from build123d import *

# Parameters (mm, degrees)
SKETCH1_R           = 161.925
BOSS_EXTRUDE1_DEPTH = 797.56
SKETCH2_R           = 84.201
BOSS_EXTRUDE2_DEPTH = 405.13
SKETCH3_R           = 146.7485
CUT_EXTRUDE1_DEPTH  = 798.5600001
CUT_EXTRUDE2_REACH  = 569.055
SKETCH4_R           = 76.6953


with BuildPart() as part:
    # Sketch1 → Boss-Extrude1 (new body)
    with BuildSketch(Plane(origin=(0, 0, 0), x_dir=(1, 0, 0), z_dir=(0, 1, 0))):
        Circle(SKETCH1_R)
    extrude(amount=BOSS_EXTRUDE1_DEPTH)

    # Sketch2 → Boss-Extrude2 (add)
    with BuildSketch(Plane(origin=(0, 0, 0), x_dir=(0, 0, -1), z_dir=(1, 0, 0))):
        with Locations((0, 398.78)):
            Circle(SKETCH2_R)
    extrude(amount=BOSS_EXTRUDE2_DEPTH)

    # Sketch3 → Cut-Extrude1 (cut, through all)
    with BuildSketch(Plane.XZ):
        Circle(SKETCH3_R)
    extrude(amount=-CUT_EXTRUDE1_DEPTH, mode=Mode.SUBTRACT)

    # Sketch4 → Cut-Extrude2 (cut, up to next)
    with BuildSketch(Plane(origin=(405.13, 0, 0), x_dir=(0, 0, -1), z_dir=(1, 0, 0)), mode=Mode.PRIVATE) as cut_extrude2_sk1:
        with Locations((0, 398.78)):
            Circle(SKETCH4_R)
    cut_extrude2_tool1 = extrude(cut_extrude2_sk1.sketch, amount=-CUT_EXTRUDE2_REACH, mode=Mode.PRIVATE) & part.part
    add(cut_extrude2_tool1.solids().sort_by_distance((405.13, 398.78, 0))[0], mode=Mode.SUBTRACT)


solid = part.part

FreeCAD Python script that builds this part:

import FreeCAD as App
import Part
import Sketcher
from FreeCAD import Vector
Q = App.Units.Quantity

doc = App.newDocument("Part")
params = doc.addObject("Spreadsheet::Sheet", "Params")
for row, (alias, value) in enumerate([
    ("sketch1_diameter", "12.75 in"),
    ("pad1_length", "31.4 in"),
    ("sketch2_diameter", "6.63 in"),
    ("pad2_length", "15.95 in"),
    ("sketch3_diameter", "11.555 in"),
    ("sketch4_diameter", "6.039 in"),
    ("pocket2_length", "280.018237 mm"),
], start=1):
    params.set(f"A{row}", alias)
    params.set(f"B{row}", "=" + value)
    params.setAlias(f"B{row}", alias)

body = doc.addObject("PartDesign::Body", "Body")

sketch1 = body.newObject("Sketcher::SketchObject", "Sketch")
sketch1.AttachmentSupport = (doc.getObject("XZ_Plane"), [""])
sketch1.MapMode = "FlatFace"
sketch1.addGeometry(Part.Circle(Vector(0, 0, 0), Vector(0, 0, 1), 161.925), False)
sketch1.addConstraint(Sketcher.Constraint("Coincident", 0, 3, -1, 1))
sketch1.addConstraint(Sketcher.Constraint("Diameter", 0, Q("12.75 in")))
sketch1.setExpression("Constraints[1]", "Params.sketch1_diameter")
pad1 = body.newObject("PartDesign::Pad", "Pad")
pad1.Profile = sketch1
pad1.setExpression("Length", "Params.pad1_length")
pad1.Reversed = True

sketch2 = body.newObject("Sketcher::SketchObject", "Sketch001")
sketch2.AttachmentSupport = (doc.getObject("YZ_Plane"), [""])
sketch2.MapMode = "FlatFace"
sketch2.addGeometry(Part.Circle(Vector(398.78, 0, 0), Vector(0, 0, 1), 84.201), False)
sketch2.addConstraint(Sketcher.Constraint("PointOnObject", 0, 3, -1))
sketch2.addConstraint(Sketcher.Constraint("Diameter", 0, Q("6.63 in")))
sketch2.addConstraint(Sketcher.Constraint("DistanceX", -1, 1, 0, 3, Q("15.7 in")))
sketch2.setExpression("Constraints[1]", "Params.sketch2_diameter")
pad2 = body.newObject("PartDesign::Pad", "Pad001")
pad2.Profile = sketch2
pad2.setExpression("Length", "Params.pad2_length")

sketch3 = body.newObject("Sketcher::SketchObject", "Sketch002")
sketch3.AttachmentSupport = (doc.getObject("XZ_Plane"), [""])
sketch3.MapMode = "FlatFace"
sketch3.addGeometry(Part.Circle(Vector(0, 0, 0), Vector(0, 0, 1), 146.7485), False)
sketch3.addConstraint(Sketcher.Constraint("Coincident", 0, 3, -1, 1))
sketch3.addConstraint(Sketcher.Constraint("Diameter", 0, Q("11.555 in")))
sketch3.setExpression("Constraints[1]", "Params.sketch3_diameter")
pocket1 = body.newObject("PartDesign::Pocket", "Pocket")
pocket1.Profile = sketch3
pocket1.Type = "ThroughAll"

sketch4 = body.newObject("Sketcher::SketchObject", "Sketch003")
sketch4.AttachmentSupport = (doc.getObject("YZ_Plane"), [""])
sketch4.MapMode = "FlatFace"
sketch4.AttachmentOffset = App.Placement(Vector(0, 0, 15.95 * 25.4), App.Rotation())
sketch4.addGeometry(Part.Circle(Vector(398.78, 0, 0), Vector(0, 0, 1), 76.6953), False)
sketch4.addConstraint(Sketcher.Constraint("PointOnObject", 0, 3, -1))
sketch4.addConstraint(Sketcher.Constraint("Diameter", 0, Q("6.039 in")))
sketch4.addConstraint(Sketcher.Constraint("DistanceX", -1, 1, 0, 3, Q("15.7 in")))
sketch4.setExpression("Constraints[1]", "Params.sketch4_diameter")
pocket2 = body.newObject("PartDesign::Pocket", "Pocket001")
pocket2.Profile = sketch4
pocket2.setExpression("Length", "Params.pocket2_length")

doc.recompute()
